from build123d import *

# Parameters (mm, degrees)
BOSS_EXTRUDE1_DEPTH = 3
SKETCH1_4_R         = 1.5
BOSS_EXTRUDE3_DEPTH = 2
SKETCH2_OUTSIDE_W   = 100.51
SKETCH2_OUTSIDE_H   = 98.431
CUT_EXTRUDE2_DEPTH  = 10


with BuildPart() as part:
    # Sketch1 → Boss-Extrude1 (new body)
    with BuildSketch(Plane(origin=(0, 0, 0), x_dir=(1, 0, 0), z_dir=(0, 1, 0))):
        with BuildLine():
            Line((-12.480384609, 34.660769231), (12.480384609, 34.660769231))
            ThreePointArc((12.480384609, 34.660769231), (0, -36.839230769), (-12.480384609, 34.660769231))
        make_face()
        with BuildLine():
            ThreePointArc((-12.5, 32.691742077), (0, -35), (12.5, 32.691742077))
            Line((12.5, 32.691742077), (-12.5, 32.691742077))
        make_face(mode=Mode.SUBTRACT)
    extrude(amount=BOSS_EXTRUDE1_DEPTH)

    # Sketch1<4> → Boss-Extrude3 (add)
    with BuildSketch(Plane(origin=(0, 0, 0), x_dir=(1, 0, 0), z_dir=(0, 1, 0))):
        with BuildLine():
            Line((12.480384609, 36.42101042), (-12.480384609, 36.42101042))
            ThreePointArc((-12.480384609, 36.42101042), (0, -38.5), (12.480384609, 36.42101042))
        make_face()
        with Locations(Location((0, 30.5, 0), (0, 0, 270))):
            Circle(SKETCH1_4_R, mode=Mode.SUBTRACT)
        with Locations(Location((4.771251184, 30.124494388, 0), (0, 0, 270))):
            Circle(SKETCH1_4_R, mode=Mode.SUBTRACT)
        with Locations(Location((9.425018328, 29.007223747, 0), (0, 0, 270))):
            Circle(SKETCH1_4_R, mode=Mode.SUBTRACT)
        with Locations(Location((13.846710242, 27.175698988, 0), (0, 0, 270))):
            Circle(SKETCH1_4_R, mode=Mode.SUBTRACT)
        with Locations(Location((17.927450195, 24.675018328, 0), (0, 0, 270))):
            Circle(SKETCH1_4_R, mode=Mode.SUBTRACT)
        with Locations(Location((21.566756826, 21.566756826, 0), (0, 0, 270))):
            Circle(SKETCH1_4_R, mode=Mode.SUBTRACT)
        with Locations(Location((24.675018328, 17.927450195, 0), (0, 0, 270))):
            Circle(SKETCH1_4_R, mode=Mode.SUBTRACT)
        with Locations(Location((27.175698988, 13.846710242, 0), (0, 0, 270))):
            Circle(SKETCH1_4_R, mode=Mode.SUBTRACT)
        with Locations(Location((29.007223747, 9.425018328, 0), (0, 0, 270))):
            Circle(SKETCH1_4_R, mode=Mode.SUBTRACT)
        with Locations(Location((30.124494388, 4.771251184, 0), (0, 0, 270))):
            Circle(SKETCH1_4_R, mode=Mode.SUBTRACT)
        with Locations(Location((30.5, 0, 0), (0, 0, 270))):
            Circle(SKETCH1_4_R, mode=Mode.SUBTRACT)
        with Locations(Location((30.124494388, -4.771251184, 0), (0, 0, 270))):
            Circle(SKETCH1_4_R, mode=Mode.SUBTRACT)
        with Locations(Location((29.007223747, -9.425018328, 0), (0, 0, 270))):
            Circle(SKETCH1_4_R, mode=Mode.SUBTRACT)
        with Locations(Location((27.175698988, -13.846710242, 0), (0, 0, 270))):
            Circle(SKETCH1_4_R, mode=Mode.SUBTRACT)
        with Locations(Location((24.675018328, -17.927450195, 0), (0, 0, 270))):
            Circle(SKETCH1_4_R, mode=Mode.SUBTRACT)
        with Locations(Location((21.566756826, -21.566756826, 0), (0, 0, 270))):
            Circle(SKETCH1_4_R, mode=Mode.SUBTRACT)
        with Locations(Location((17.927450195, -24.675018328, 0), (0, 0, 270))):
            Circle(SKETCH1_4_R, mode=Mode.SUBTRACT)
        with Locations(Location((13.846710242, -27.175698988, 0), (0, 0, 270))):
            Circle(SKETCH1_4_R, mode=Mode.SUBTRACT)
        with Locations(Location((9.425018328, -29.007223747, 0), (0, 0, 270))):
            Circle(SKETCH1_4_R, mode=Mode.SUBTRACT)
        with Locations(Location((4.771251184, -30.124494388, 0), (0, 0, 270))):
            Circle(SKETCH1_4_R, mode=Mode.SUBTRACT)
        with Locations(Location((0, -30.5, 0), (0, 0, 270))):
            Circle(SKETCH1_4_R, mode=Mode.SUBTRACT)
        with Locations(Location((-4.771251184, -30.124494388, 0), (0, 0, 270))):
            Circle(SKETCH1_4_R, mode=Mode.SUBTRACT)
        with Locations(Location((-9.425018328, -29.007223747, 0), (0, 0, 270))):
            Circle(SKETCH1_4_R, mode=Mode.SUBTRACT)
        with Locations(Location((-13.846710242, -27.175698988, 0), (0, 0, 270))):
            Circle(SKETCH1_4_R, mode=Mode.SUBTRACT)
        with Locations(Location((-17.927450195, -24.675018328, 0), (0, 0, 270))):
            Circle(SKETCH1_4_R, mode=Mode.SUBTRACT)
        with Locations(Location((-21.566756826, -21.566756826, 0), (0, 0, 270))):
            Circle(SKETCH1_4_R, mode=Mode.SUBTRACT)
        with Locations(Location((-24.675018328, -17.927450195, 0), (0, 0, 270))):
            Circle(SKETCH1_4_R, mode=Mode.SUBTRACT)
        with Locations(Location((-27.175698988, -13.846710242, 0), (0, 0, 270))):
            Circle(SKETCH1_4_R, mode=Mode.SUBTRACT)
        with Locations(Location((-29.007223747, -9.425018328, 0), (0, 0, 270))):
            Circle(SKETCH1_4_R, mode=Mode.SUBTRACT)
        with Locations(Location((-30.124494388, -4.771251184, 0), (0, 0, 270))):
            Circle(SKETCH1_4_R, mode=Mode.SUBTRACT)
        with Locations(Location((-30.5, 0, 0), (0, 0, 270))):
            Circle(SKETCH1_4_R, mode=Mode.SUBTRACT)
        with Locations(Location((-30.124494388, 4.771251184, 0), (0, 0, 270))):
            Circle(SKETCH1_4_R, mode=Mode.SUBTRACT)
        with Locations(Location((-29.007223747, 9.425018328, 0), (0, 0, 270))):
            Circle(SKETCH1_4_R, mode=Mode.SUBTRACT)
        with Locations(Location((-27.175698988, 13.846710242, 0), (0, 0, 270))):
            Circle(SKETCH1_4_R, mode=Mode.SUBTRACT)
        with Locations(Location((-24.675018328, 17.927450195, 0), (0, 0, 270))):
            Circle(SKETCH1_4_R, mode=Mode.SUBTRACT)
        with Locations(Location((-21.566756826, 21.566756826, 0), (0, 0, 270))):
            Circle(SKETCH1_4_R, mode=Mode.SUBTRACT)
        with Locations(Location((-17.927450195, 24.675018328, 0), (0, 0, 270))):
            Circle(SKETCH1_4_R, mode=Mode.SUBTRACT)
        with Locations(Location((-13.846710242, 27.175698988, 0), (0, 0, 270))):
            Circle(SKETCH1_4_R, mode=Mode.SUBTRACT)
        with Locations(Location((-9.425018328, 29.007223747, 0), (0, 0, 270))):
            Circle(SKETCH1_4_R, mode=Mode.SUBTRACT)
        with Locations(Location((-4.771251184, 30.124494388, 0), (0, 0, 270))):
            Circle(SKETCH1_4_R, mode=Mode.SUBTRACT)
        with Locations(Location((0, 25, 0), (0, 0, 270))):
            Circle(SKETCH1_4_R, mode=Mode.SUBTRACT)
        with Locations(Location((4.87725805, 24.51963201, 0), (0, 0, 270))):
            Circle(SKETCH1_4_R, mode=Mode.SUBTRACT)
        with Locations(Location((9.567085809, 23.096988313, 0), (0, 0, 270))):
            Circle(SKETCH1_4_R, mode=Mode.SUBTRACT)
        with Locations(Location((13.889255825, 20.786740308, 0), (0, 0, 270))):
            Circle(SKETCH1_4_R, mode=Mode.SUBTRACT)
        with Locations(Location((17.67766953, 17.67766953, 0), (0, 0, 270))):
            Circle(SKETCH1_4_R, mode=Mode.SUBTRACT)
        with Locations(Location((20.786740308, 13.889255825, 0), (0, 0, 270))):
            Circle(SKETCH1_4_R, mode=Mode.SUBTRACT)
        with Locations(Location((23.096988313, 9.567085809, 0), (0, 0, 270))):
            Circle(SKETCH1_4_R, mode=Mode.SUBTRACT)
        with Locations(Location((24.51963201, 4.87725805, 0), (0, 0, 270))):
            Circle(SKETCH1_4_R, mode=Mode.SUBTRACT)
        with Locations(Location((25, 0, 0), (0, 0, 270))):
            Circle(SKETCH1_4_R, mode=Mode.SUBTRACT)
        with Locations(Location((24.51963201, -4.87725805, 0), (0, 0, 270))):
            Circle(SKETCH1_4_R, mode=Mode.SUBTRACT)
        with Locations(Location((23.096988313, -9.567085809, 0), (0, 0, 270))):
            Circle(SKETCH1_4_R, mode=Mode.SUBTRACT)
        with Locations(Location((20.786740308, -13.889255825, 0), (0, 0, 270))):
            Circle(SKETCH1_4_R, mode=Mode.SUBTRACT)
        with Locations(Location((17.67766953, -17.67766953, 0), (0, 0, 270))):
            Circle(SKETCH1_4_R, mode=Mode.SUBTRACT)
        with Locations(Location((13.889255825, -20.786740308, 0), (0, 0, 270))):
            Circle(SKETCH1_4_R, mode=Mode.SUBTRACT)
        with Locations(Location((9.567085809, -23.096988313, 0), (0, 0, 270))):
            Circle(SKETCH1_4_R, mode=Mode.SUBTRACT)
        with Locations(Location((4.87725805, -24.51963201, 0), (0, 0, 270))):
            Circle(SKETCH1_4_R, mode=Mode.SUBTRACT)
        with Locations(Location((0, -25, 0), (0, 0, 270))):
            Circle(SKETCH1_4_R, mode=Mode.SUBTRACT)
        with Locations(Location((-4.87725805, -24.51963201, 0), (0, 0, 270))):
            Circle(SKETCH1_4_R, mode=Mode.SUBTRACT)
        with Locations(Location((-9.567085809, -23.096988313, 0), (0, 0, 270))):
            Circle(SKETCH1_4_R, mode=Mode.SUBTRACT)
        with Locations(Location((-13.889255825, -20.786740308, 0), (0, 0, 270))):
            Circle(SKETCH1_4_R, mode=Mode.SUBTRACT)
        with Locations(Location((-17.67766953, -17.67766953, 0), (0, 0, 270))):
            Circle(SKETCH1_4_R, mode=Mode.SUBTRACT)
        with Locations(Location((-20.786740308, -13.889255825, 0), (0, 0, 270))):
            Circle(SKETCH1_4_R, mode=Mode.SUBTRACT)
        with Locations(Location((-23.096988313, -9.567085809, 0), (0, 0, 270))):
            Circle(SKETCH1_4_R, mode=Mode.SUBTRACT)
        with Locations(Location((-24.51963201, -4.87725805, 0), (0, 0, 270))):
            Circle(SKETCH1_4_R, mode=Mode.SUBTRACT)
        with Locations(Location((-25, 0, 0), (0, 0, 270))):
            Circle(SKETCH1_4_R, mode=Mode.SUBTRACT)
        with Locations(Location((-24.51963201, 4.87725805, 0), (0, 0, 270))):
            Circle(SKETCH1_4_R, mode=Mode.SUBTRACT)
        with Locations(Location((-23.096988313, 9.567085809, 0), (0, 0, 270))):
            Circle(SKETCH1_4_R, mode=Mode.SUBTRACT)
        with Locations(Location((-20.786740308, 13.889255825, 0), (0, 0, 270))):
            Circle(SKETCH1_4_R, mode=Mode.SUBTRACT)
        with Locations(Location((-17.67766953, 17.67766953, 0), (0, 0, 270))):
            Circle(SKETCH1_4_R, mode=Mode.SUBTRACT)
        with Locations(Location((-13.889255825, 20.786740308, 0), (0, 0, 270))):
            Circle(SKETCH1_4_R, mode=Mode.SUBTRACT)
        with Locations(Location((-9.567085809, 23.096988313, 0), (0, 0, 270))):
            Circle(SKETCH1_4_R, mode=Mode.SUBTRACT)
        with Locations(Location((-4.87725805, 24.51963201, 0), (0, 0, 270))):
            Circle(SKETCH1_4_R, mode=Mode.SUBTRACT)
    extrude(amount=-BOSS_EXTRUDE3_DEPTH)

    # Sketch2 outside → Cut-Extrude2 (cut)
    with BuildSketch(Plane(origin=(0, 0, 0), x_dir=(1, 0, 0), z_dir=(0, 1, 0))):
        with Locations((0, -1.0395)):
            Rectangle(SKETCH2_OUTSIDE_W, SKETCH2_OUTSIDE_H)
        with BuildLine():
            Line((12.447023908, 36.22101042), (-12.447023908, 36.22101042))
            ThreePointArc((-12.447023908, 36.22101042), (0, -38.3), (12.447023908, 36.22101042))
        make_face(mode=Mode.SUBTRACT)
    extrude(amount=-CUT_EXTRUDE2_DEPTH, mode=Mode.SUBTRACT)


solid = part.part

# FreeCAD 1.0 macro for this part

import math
import FreeCAD as App
import Part
import Sketcher
from FreeCAD import Vector
Q = App.Units.Quantity


def add_polygon(sketch, points):
    """Adds a closed chain of lines whose ends are joined by coincident constraints."""
    first, n = sketch.GeometryCount, len(points)
    for a, b in zip(points, points[1:] + points[:1]):
        sketch.addGeometry(Part.LineSegment(App.Vector(*a, 0), App.Vector(*b, 0)), False)
    for i in range(n):
        sketch.addConstraint(Sketcher.Constraint("Coincident", first + i, 2, first + (i + 1) % n, 1))

doc = App.newDocument("Part")
body = doc.addObject("PartDesign::Body", "Body")

sketch1 = doc.addObject("Sketcher::SketchObject", "Sketch")
body.addObject(sketch1)
sketch1.AttachmentSupport = (doc.XZ_Plane, [""])
sketch1.MapMode = "FlatFace"
sketch1.addGeometry([
    Part.LineSegment(Vector(12.480385, -34.660769, 0), Vector(-12.480385, -34.660769, 0)),
    Part.ArcOfCircle(Part.Circle(Vector(0, 0, 0), Vector(0, 0, 1), 36.839231), math.radians(-70.197454), math.radians(250.197454)),
    Part.LineSegment(Vector(-12.5, -32.691742, 0), Vector(12.5, -32.691742, 0)),
    Part.ArcOfCircle(Part.Circle(Vector(0, 0, 0), Vector(0, 0, 1), 35), math.radians(-69.075168), math.radians(249.075168)),
], False)
sketch1.addConstraint([
    Sketcher.Constraint("Coincident", 0, 1, 1, 1),
    Sketcher.Constraint("Coincident", 1, 2, 0, 2),
    Sketcher.Constraint("Coincident", 2, 1, 3, 2),
    Sketcher.Constraint("Coincident", 3, 1, 2, 2),
    Sketcher.Constraint("Horizontal", 0),
    Sketcher.Constraint("Horizontal", 2),
    Sketcher.Constraint("Coincident", 1, 3, -1, 1),
    Sketcher.Constraint("Coincident", 3, 3, -1, 1),
    Sketcher.Constraint("Radius", 3, Q("35 mm")),
    Sketcher.Constraint("DistanceX", 2, 1, 2, 2, Q("25 mm")),
    Sketcher.Constraint("Radius", 1, Q("36.839231 mm")),
    Sketcher.Constraint("DistanceX", 0, 2, 0, 1, Q("24.960769 mm")),
])
pad1 = doc.addObject("PartDesign::Pad", "Pad")
body.addObject(pad1)
pad1.Profile = sketch1
pad1.Length = 3
pad1.Reversed = True

sketch2 = doc.addObject("Sketcher::SketchObject", "Sketch001")
body.addObject(sketch2)
sketch2.AttachmentSupport = (doc.XZ_Plane, [""])
sketch2.MapMode = "FlatFace"
sketch2.addGeometry([
    Part.LineSegment(Vector(12.480385, -36.42101, 0), Vector(-12.480385, -36.42101, 0)),
    Part.ArcOfCircle(Part.Circle(Vector(0, 0, 0), Vector(0, 0, 1), 38.5), math.radians(-71.084955), math.radians(251.084955)),
    Part.Circle(Vector(-17.92745, 24.675018, 0), Vector(0, 0, 1), 1.5),
    Part.Circle(Vector(-24.675018, 17.92745, 0), Vector(0, 0, 1), 1.5),
    Part.Circle(Vector(-21.566757, 21.566757, 0), Vector(0, 0, 1), 1.5),
    Part.Circle(Vector(-17.67767, 17.67767, 0), Vector(0, 0, 1), 1.5),
    Part.Circle(Vector(-9.425018, 29.007224, 0), Vector(0, 0, 1), 1.5),
    Part.Circle(Vector(-13.84671, 27.175699, 0), Vector(0, 0, 1), 1.5),
    Part.Circle(Vector(-4.771251, 30.124494, 0), Vector(0, 0, 1), 1.5),
    Part.Circle(Vector(0, 30.5, 0), Vector(0, 0, 1), 1.5),
    Part.Circle(Vector(-4.877258, 24.519632, 0), Vector(0, 0, 1), 1.5),
    Part.Circle(Vector(0, 25, 0), Vector(0, 0, 1), 1.5),
    Part.Circle(Vector(-13.889256, 20.78674, 0), Vector(0, 0, 1), 1.5),
    Part.Circle(Vector(-9.567086, 23.096988, 0), Vector(0, 0, 1), 1.5),
    Part.Circle(Vector(-27.175699, 13.84671, 0), Vector(0, 0, 1), 1.5),
    Part.Circle(Vector(-29.007224, 9.425018, 0), Vector(0, 0, 1), 1.5),
    Part.Circle(Vector(-20.78674, 13.889256, 0), Vector(0, 0, 1), 1.5),
    Part.Circle(Vector(-23.096988, 9.567086, 0), Vector(0, 0, 1), 1.5),
    Part.Circle(Vector(-30.124494, 4.771251, 0), Vector(0, 0, 1), 1.5),
    Part.Circle(Vector(-24.519632, 4.877258, 0), Vector(0, 0, 1), 1.5),
    Part.Circle(Vector(-30.5, 0, 0), Vector(0, 0, 1), 1.5),
    Part.Circle(Vector(-25, 0, 0), Vector(0, 0, 1), 1.5),
    Part.Circle(Vector(4.771251, 30.124494, 0), Vector(0, 0, 1), 1.5),
    Part.Circle(Vector(4.877258, 24.519632, 0), Vector(0, 0, 1), 1.5),
    Part.Circle(Vector(9.425018, 29.007224, 0), Vector(0, 0, 1), 1.5),
    Part.Circle(Vector(13.84671, 27.175699, 0), Vector(0, 0, 1), 1.5),
    Part.Circle(Vector(9.567086, 23.096988, 0), Vector(0, 0, 1), 1.5),
    Part.Circle(Vector(13.889256, 20.78674, 0), Vector(0, 0, 1), 1.5),
    Part.Circle(Vector(17.92745, 24.675018, 0), Vector(0, 0, 1), 1.5),
    Part.Circle(Vector(21.566757, 21.566757, 0), Vector(0, 0, 1), 1.5),
    Part.Circle(Vector(17.67767, 17.67767, 0), Vector(0, 0, 1), 1.5),
    Part.Circle(Vector(24.675018, 17.92745, 0), Vector(0, 0, 1), 1.5),
    Part.Circle(Vector(20.78674, 13.889256, 0), Vector(0, 0, 1), 1.5),
    Part.Circle(Vector(23.096988, 9.567086, 0), Vector(0, 0, 1), 1.5),
    Part.Circle(Vector(27.175699, 13.84671, 0), Vector(0, 0, 1), 1.5),
    Part.Circle(Vector(29.007224, 9.425018, 0), Vector(0, 0, 1), 1.5),
    Part.Circle(Vector(24.519632, 4.877258, 0), Vector(0, 0, 1), 1.5),
    Part.Circle(Vector(30.124494, 4.771251, 0), Vector(0, 0, 1), 1.5),
    Part.Circle(Vector(25, 0, 0), Vector(0, 0, 1), 1.5),
    Part.Circle(Vector(30.5, 0, 0), Vector(0, 0, 1), 1.5),
    Part.Circle(Vector(-30.124494, -4.771251, 0), Vector(0, 0, 1), 1.5),
    Part.Circle(Vector(-24.519632, -4.877258, 0), Vector(0, 0, 1), 1.5),
    Part.Circle(Vector(-29.007224, -9.425018, 0), Vector(0, 0, 1), 1.5),
    Part.Circle(Vector(-27.175699, -13.84671, 0), Vector(0, 0, 1), 1.5),
    Part.Circle(Vector(-23.096988, -9.567086, 0), Vector(0, 0, 1), 1.5),
    Part.Circle(Vector(-20.78674, -13.889256, 0), Vector(0, 0, 1), 1.5),
    Part.Circle(Vector(-24.675018, -17.92745, 0), Vector(0, 0, 1), 1.5),
    Part.Circle(Vector(-17.67767, -17.67767, 0), Vector(0, 0, 1), 1.5),
    Part.Circle(Vector(-21.566757, -21.566757, 0), Vector(0, 0, 1), 1.5),
    Part.Circle(Vector(-17.92745, -24.675018, 0), Vector(0, 0, 1), 1.5),
    Part.Circle(Vector(-13.889256, -20.78674, 0), Vector(0, 0, 1), 1.5),
    Part.Circle(Vector(-9.567086, -23.096988, 0), Vector(0, 0, 1), 1.5),
    Part.Circle(Vector(-13.84671, -27.175699, 0), Vector(0, 0, 1), 1.5),
    Part.Circle(Vector(-9.425018, -29.007224, 0), Vector(0, 0, 1), 1.5),
    Part.Circle(Vector(-4.877258, -24.519632, 0), Vector(0, 0, 1), 1.5),
    Part.Circle(Vector(0, -25, 0), Vector(0, 0, 1), 1.5),
    Part.Circle(Vector(-4.771251, -30.124494, 0), Vector(0, 0, 1), 1.5),
    Part.Circle(Vector(0, -30.5, 0), Vector(0, 0, 1), 1.5),
    Part.Circle(Vector(24.519632, -4.877258, 0), Vector(0, 0, 1), 1.5),
    Part.Circle(Vector(30.124494, -4.771251, 0), Vector(0, 0, 1), 1.5),
    Part.Circle(Vector(23.096988, -9.567086, 0), Vector(0, 0, 1), 1.5),
    Part.Circle(Vector(20.78674, -13.889256, 0), Vector(0, 0, 1), 1.5),
    Part.Circle(Vector(29.007224, -9.425018, 0), Vector(0, 0, 1), 1.5),
    Part.Circle(Vector(27.175699, -13.84671, 0), Vector(0, 0, 1), 1.5),
    Part.Circle(Vector(9.567086, -23.096988, 0), Vector(0, 0, 1), 1.5),
    Part.Circle(Vector(13.889256, -20.78674, 0), Vector(0, 0, 1), 1.5),
    Part.Circle(Vector(4.877258, -24.519632, 0), Vector(0, 0, 1), 1.5),
    Part.Circle(Vector(4.771251, -30.124494, 0), Vector(0, 0, 1), 1.5),
    Part.Circle(Vector(13.84671, -27.175699, 0), Vector(0, 0, 1), 1.5),
    Part.Circle(Vector(9.425018, -29.007224, 0), Vector(0, 0, 1), 1.5),
    Part.Circle(Vector(17.67767, -17.67767, 0), Vector(0, 0, 1), 1.5),
    Part.Circle(Vector(21.566757, -21.566757, 0), Vector(0, 0, 1), 1.5),
    Part.Circle(Vector(24.675018, -17.92745, 0), Vector(0, 0, 1), 1.5),
    Part.Circle(Vector(17.92745, -24.675018, 0), Vector(0, 0, 1), 1.5),
], False)
sketch2.addConstraint([
    Sketcher.Constraint("Coincident", 0, 1, 1, 1),
    Sketcher.Constraint("Coincident", 1, 2, 0, 2),
    Sketcher.Constraint("Horizontal", 0),
    Sketcher.Constraint("Coincident", 1, 3, -1, 1),
    Sketcher.Constraint("Equal", 2, 3),
    Sketcher.Constraint("Equal", 3, 4),
    Sketcher.Constraint("Equal", 4, 5),
    Sketcher.Constraint("Equal", 5, 6),
    Sketcher.Constraint("Equal", 6, 7),
    Sketcher.Constraint("Equal", 7, 8),
    Sketcher.Constraint("Equal", 8, 9),
    Sketcher.Constraint("Equal", 9, 10),
    Sketcher.Constraint("Equal", 10, 11),
    Sketcher.Constraint("Equal", 11, 12),
    Sketcher.Constraint("Equal", 12, 13),
    Sketcher.Constraint("Equal", 13, 14),
    Sketcher.Constraint("Equal", 14, 15),
    Sketcher.Constraint("Equal", 15, 16),
    Sketcher.Constraint("Equal", 16, 17),
    Sketcher.Constraint("Equal", 17, 18),
    Sketcher.Constraint("Equal", 18, 19),
    Sketcher.Constraint("Equal", 19, 20),
    Sketcher.Constraint("Equal", 20, 21),
    Sketcher.Constraint("Equal", 21, 22),
    Sketcher.Constraint("Equal", 22, 23),
    Sketcher.Constraint("Equal", 23, 24),
    Sketcher.Constraint("Equal", 24, 25),
    Sketcher.Constraint("Equal", 25, 26),
    Sketcher.Constraint("Equal", 26, 27),
    Sketcher.Constraint("Equal", 27, 28),
    Sketcher.Constraint("Equal", 28, 29),
    Sketcher.Constraint("Equal", 29, 30),
    Sketcher.Constraint("Equal", 30, 31),
    Sketcher.Constraint("Equal", 31, 32),
    Sketcher.Constraint("Equal", 32, 33),
    Sketcher.Constraint("Equal", 33, 34),
    Sketcher.Constraint("Equal", 34, 35),
    Sketcher.Constraint("Equal", 35, 36),
    Sketcher.Constraint("Equal", 36, 37),
    Sketcher.Constraint("Equal", 37, 38),
    Sketcher.Constraint("Equal", 38, 39),
    Sketcher.Constraint("Equal", 39, 40),
    Sketcher.Constraint("Equal", 40, 41),
    Sketcher.Constraint("Equal", 41, 42),
    Sketcher.Constraint("Equal", 42, 43),
    Sketcher.Constraint("Equal", 43, 44),
    Sketcher.Constraint("Equal", 44, 45),
    Sketcher.Constraint("Equal", 45, 46),
    Sketcher.Constraint("Equal", 46, 47),
    Sketcher.Constraint("Equal", 47, 48),
    Sketcher.Constraint("Equal", 48, 49),
    Sketcher.Constraint("Equal", 49, 50),
    Sketcher.Constraint("Equal", 50, 51),
    Sketcher.Constraint("Equal", 51, 52),
    Sketcher.Constraint("Equal", 52, 53),
    Sketcher.Constraint("Equal", 53, 54),
    Sketcher.Constraint("Equal", 54, 55),
    Sketcher.Constraint("Equal", 55, 56),
    Sketcher.Constraint("Equal", 56, 57),
    Sketcher.Constraint("Equal", 57, 58),
    Sketcher.Constraint("Equal", 58, 59),
    Sketcher.Constraint("Equal", 59, 60),
    Sketcher.Constraint("Equal", 60, 61),
    Sketcher.Constraint("Equal", 61, 62),
    Sketcher.Constraint("Equal", 62, 63),
    Sketcher.Constraint("Equal", 63, 64),
    Sketcher.Constraint("Equal", 64, 65),
    Sketcher.Constraint("Equal", 65, 66),
    Sketcher.Constraint("Equal", 66, 67),
    Sketcher.Constraint("Equal", 67, 68),
    Sketcher.Constraint("Equal", 68, 69),
    Sketcher.Constraint("Equal", 69, 70),
    Sketcher.Constraint("Equal", 70, 71),
    Sketcher.Constraint("Equal", 71, 72),
    Sketcher.Constraint("Equal", 72, 73),
    Sketcher.Constraint("Symmetric", 21, 3, 38, 3, -1, 1),
    Sketcher.Constraint("Symmetric", 20, 3, 39, 3, -1, 1),
    Sketcher.Constraint("Symmetric", 37, 3, 40, 3, -1, 1),
    Sketcher.Constraint("Symmetric", 36, 3, 41, 3, -1, 1),
    Sketcher.Constraint("Symmetric", 35, 3, 42, 3, -1, 1),
    Sketcher.Constraint("Symmetric", 34, 3, 43, 3, -1, 1),
    Sketcher.Constraint("Symmetric", 33, 3, 44, 3, -1, 1),
    Sketcher.Constraint("Symmetric", 32, 3, 45, 3, -1, 1),
    Sketcher.Constraint("Symmetric", 31, 3, 46, 3, -1, 1),
    Sketcher.Constraint("Symmetric", 30, 3, 47, 3, -1, 1),
    Sketcher.Constraint("Symmetric", 29, 3, 48, 3, -1, 1),
    Sketcher.Constraint("Symmetric", 28, 3, 49, 3, -1, 1),
    Sketcher.Constraint("Symmetric", 27, 3, 50, 3, -1, 1),
    Sketcher.Constraint("Symmetric", 26, 3, 51, 3, -1, 1),
    Sketcher.Constraint("Symmetric", 25, 3, 52, 3, -1, 1),
    Sketcher.Constraint("Symmetric", 24, 3, 53, 3, -1, 1),
    Sketcher.Constraint("Symmetric", 23, 3, 54, 3, -1, 1),
    Sketcher.Constraint("Symmetric", 11, 3, 55, 3, -1, 1),
    Sketcher.Constraint("Symmetric", 22, 3, 56, 3, -1, 1),
    Sketcher.Constraint("Symmetric", 9, 3, 57, 3, -1, 1),
    Sketcher.Constraint("Symmetric", 19, 3, 58, 3, -1, 1),
    Sketcher.Constraint("Symmetric", 18, 3, 59, 3, -1, 1),
    Sketcher.Constraint("Symmetric", 17, 3, 60, 3, -1, 1),
    Sketcher.Constraint("Symmetric", 16, 3, 61, 3, -1, 1),
    Sketcher.Constraint("Symmetric", 15, 3, 62, 3, -1, 1),
    Sketcher.Constraint("Symmetric", 14, 3, 63, 3, -1, 1),
    Sketcher.Constraint("Symmetric", 13, 3, 64, 3, -1, 1),
    Sketcher.Constraint("Symmetric", 12, 3, 65, 3, -1, 1),
    Sketcher.Constraint("Symmetric", 10, 3, 66, 3, -1, 1),
    Sketcher.Constraint("Symmetric", 8, 3, 67, 3, -1, 1),
    Sketcher.Constraint("Symmetric", 7, 3, 68, 3, -1, 1),
    Sketcher.Constraint("Symmetric", 6, 3, 69, 3, -1, 1),
    Sketcher.Constraint("Symmetric", 5, 3, 70, 3, -1, 1),
    Sketcher.Constraint("Symmetric", 4, 3, 71, 3, -1, 1),
    Sketcher.Constraint("Symmetric", 3, 3, 72, 3, -1, 1),
    Sketcher.Constraint("Symmetric", 2, 3, 73, 3, -1, 1),
    Sketcher.Constraint("Symmetric", 8, 3, 22, 3, -2),
    Sketcher.Constraint("Symmetric", 10, 3, 23, 3, -2),
    Sketcher.Constraint("Symmetric", 6, 3, 24, 3, -2),
    Sketcher.Constraint("Symmetric", 7, 3, 25, 3, -2),
    Sketcher.Constraint("Symmetric", 13, 3, 26, 3, -2),
    Sketcher.Constraint("Symmetric", 12, 3, 27, 3, -2),
    Sketcher.Constraint("Symmetric", 2, 3, 28, 3, -2),
    Sketcher.Constraint("Symmetric", 4, 3, 29, 3, -2),
    Sketcher.Constraint("Symmetric", 5, 3, 30, 3, -2),
    Sketcher.Constraint("Symmetric", 3, 3, 31, 3, -2),
    Sketcher.Constraint("Symmetric", 16, 3, 32, 3, -2),
    Sketcher.Constraint("Symmetric", 17, 3, 33, 3, -2),
    Sketcher.Constraint("Symmetric", 14, 3, 34, 3, -2),
    Sketcher.Constraint("Symmetric", 15, 3, 35, 3, -2),
    Sketcher.Constraint("Symmetric", 19, 3, 36, 3, -2),
    Sketcher.Constraint("Symmetric", 18, 3, 37, 3, -2),
    Sketcher.Constraint("PointOnObject", 9, 3, -2),
    Sketcher.Constraint("PointOnObject", 11, 3, -2),
    Sketcher.Constraint("PointOnObject", 20, 3, -1),
    Sketcher.Constraint("PointOnObject", 21, 3, -1),
    Sketcher.Constraint("Diameter", 2, Q("3 mm")),
    Sketcher.Constraint("Radius", 1, Q("38.5 mm")),
    Sketcher.Constraint("DistanceY", -1, 1, 11, 3, Q("25 mm")),
    Sketcher.Constraint("DistanceX", 21, 3, -1, 1, Q("25 mm")),
    Sketcher.Constraint("DistanceY", -1, 1, 9, 3, Q("30.5 mm")),
    Sketcher.Constraint("DistanceX", 20, 3, -1, 1, Q("30.5 mm")),
    Sketcher.Constraint("DistanceX", 0, 2, 0, 1, Q("24.960769 mm")),
    Sketcher.Constraint("DistanceY", -1, 1, 7, 3, Q("27.175699 mm")),
    Sketcher.Constraint("DistanceX", 14, 3, -1, 1, Q("27.175699 mm")),
    Sketcher.Constraint("DistanceX", 2, 3, -1, 1, Q("17.92745 mm")),
    Sketcher.Constraint("DistanceY", -1, 1, 2, 3, Q("24.675018 mm")),
    Sketcher.Constraint("DistanceX", 3, 3, -1, 1, Q("24.675018 mm")),
    Sketcher.Constraint("DistanceY", -1, 1, 3, 3, Q("17.92745 mm")),
    Sketcher.Constraint("DistanceX", 5, 3, -1, 1, Q("17.67767 mm")),
    Sketcher.Constraint("DistanceY", -1, 1, 5, 3, Q("17.67767 mm")),
    Sketcher.Constraint("DistanceX", 6, 3, -1, 1, Q("9.425018 mm")),
    Sketcher.Constraint("DistanceX", 7, 3, -1, 1, Q("13.84671 mm")),
    Sketcher.Constraint("DistanceX", 8, 3, -1, 1, Q("4.771251 mm")),
    Sketcher.Constraint("DistanceX", 10, 3, -1, 1, Q("4.877258 mm")),
    Sketcher.Constraint("DistanceY", -1, 1, 12, 3, Q("20.78674 mm")),
    Sketcher.Constraint("DistanceY", -1, 1, 13, 3, Q("23.096988 mm")),
    Sketcher.Constraint("DistanceY", -1, 1, 14, 3, Q("13.84671 mm")),
    Sketcher.Constraint("DistanceY", -1, 1, 15, 3, Q("9.425018 mm")),
    Sketcher.Constraint("DistanceX", 16, 3, -1, 1, Q("20.78674 mm")),
    Sketcher.Constraint("DistanceX", 17, 3, -1, 1, Q("23.096988 mm")),
    Sketcher.Constraint("DistanceY", -1, 1, 18, 3, Q("4.771251 mm")),
    Sketcher.Constraint("DistanceY", -1, 1, 19, 3, Q("4.877258 mm")),
    Sketcher.Constraint("DistanceX", 4, 3, -1, 1, Q("21.566757 mm")),
    Sketcher.Constraint("DistanceY", -1, 1, 4, 3, Q("21.566757 mm")),
    Sketcher.Constraint("DistanceY", -1, 1, 6, 3, Q("29.007224 mm")),
    Sketcher.Constraint("DistanceY", -1, 1, 8, 3, Q("30.124494 mm")),
    Sketcher.Constraint("DistanceY", -1, 1, 10, 3, Q("24.519632 mm")),
    Sketcher.Constraint("DistanceX", 12, 3, -1, 1, Q("13.889256 mm")),
    Sketcher.Constraint("DistanceX", 13, 3, -1, 1, Q("9.567086 mm")),
    Sketcher.Constraint("DistanceX", 15, 3, -1, 1, Q("29.007224 mm")),
    Sketcher.Constraint("DistanceY", -1, 1, 16, 3, Q("13.889256 mm")),
    Sketcher.Constraint("DistanceY", -1, 1, 17, 3, Q("9.567086 mm")),
    Sketcher.Constraint("DistanceX", 18, 3, -1, 1, Q("30.124494 mm")),
    Sketcher.Constraint("DistanceX", 19, 3, -1, 1, Q("24.519632 mm")),
])
pad2 = doc.addObject("PartDesign::Pad", "Pad001")
body.addObject(pad2)
pad2.Profile = sketch2
pad2.Length = 2

sketch3 = doc.addObject("Sketcher::SketchObject", "Sketch002")
body.addObject(sketch3)
sketch3.AttachmentSupport = (doc.XZ_Plane, [""])
sketch3.MapMode = "FlatFace"
add_polygon(sketch3, [(-50.255, -48.176), (-50.255, 50.255), (50.255, 50.255), (50.255, -48.176)])
sketch3.addGeometry(Part.LineSegment(Vector(-12.447024, -36.22101, 0), Vector(12.447024, -36.22101, 0)), False)
sketch3.addGeometry(Part.ArcOfCircle(Part.Circle(Vector(0, 0, 0), Vector(0, 0, 1), 38.3), math.radians(-71.035178), math.radians(251.035178)), False)
sketch3.addConstraint([
    Sketcher.Constraint("Coincident", 4, 1, 5, 2),
    Sketcher.Constraint("Coincident", 5, 1, 4, 2),
    Sketcher.Constraint("Vertical", 0),
    Sketcher.Constraint("Horizontal", 1),
    Sketcher.Constraint("Vertical", 2),
    Sketcher.Constraint("Horizontal", 3),
    Sketcher.Constraint("Horizontal", 4),
    Sketcher.Constraint("Coincident", 5, 3, -1, 1),
    Sketcher.Constraint("Radius", 5, Q("38.3 mm")),
    Sketcher.Constraint("DistanceX", 1, 1, 1, 2, Q("100.51 mm")),
    Sketcher.Constraint("DistanceY", 0, 1, 0, 2, Q("98.431 mm")),
    Sketcher.Constraint("DistanceX", 0, 2, -1, 1, Q("50.255 mm")),
    Sketcher.Constraint("DistanceY", -1, 1, 0, 2, Q("50.255 mm")),
    Sketcher.Constraint("DistanceX", 4, 1, 4, 2, Q("24.894048 mm")),
])
pocket1 = doc.addObject("PartDesign::Pocket", "Pocket")
body.addObject(pocket1)
pocket1.Profile = sketch3
pocket1.Length = 10
pocket1.Reversed = True

doc.recompute()
